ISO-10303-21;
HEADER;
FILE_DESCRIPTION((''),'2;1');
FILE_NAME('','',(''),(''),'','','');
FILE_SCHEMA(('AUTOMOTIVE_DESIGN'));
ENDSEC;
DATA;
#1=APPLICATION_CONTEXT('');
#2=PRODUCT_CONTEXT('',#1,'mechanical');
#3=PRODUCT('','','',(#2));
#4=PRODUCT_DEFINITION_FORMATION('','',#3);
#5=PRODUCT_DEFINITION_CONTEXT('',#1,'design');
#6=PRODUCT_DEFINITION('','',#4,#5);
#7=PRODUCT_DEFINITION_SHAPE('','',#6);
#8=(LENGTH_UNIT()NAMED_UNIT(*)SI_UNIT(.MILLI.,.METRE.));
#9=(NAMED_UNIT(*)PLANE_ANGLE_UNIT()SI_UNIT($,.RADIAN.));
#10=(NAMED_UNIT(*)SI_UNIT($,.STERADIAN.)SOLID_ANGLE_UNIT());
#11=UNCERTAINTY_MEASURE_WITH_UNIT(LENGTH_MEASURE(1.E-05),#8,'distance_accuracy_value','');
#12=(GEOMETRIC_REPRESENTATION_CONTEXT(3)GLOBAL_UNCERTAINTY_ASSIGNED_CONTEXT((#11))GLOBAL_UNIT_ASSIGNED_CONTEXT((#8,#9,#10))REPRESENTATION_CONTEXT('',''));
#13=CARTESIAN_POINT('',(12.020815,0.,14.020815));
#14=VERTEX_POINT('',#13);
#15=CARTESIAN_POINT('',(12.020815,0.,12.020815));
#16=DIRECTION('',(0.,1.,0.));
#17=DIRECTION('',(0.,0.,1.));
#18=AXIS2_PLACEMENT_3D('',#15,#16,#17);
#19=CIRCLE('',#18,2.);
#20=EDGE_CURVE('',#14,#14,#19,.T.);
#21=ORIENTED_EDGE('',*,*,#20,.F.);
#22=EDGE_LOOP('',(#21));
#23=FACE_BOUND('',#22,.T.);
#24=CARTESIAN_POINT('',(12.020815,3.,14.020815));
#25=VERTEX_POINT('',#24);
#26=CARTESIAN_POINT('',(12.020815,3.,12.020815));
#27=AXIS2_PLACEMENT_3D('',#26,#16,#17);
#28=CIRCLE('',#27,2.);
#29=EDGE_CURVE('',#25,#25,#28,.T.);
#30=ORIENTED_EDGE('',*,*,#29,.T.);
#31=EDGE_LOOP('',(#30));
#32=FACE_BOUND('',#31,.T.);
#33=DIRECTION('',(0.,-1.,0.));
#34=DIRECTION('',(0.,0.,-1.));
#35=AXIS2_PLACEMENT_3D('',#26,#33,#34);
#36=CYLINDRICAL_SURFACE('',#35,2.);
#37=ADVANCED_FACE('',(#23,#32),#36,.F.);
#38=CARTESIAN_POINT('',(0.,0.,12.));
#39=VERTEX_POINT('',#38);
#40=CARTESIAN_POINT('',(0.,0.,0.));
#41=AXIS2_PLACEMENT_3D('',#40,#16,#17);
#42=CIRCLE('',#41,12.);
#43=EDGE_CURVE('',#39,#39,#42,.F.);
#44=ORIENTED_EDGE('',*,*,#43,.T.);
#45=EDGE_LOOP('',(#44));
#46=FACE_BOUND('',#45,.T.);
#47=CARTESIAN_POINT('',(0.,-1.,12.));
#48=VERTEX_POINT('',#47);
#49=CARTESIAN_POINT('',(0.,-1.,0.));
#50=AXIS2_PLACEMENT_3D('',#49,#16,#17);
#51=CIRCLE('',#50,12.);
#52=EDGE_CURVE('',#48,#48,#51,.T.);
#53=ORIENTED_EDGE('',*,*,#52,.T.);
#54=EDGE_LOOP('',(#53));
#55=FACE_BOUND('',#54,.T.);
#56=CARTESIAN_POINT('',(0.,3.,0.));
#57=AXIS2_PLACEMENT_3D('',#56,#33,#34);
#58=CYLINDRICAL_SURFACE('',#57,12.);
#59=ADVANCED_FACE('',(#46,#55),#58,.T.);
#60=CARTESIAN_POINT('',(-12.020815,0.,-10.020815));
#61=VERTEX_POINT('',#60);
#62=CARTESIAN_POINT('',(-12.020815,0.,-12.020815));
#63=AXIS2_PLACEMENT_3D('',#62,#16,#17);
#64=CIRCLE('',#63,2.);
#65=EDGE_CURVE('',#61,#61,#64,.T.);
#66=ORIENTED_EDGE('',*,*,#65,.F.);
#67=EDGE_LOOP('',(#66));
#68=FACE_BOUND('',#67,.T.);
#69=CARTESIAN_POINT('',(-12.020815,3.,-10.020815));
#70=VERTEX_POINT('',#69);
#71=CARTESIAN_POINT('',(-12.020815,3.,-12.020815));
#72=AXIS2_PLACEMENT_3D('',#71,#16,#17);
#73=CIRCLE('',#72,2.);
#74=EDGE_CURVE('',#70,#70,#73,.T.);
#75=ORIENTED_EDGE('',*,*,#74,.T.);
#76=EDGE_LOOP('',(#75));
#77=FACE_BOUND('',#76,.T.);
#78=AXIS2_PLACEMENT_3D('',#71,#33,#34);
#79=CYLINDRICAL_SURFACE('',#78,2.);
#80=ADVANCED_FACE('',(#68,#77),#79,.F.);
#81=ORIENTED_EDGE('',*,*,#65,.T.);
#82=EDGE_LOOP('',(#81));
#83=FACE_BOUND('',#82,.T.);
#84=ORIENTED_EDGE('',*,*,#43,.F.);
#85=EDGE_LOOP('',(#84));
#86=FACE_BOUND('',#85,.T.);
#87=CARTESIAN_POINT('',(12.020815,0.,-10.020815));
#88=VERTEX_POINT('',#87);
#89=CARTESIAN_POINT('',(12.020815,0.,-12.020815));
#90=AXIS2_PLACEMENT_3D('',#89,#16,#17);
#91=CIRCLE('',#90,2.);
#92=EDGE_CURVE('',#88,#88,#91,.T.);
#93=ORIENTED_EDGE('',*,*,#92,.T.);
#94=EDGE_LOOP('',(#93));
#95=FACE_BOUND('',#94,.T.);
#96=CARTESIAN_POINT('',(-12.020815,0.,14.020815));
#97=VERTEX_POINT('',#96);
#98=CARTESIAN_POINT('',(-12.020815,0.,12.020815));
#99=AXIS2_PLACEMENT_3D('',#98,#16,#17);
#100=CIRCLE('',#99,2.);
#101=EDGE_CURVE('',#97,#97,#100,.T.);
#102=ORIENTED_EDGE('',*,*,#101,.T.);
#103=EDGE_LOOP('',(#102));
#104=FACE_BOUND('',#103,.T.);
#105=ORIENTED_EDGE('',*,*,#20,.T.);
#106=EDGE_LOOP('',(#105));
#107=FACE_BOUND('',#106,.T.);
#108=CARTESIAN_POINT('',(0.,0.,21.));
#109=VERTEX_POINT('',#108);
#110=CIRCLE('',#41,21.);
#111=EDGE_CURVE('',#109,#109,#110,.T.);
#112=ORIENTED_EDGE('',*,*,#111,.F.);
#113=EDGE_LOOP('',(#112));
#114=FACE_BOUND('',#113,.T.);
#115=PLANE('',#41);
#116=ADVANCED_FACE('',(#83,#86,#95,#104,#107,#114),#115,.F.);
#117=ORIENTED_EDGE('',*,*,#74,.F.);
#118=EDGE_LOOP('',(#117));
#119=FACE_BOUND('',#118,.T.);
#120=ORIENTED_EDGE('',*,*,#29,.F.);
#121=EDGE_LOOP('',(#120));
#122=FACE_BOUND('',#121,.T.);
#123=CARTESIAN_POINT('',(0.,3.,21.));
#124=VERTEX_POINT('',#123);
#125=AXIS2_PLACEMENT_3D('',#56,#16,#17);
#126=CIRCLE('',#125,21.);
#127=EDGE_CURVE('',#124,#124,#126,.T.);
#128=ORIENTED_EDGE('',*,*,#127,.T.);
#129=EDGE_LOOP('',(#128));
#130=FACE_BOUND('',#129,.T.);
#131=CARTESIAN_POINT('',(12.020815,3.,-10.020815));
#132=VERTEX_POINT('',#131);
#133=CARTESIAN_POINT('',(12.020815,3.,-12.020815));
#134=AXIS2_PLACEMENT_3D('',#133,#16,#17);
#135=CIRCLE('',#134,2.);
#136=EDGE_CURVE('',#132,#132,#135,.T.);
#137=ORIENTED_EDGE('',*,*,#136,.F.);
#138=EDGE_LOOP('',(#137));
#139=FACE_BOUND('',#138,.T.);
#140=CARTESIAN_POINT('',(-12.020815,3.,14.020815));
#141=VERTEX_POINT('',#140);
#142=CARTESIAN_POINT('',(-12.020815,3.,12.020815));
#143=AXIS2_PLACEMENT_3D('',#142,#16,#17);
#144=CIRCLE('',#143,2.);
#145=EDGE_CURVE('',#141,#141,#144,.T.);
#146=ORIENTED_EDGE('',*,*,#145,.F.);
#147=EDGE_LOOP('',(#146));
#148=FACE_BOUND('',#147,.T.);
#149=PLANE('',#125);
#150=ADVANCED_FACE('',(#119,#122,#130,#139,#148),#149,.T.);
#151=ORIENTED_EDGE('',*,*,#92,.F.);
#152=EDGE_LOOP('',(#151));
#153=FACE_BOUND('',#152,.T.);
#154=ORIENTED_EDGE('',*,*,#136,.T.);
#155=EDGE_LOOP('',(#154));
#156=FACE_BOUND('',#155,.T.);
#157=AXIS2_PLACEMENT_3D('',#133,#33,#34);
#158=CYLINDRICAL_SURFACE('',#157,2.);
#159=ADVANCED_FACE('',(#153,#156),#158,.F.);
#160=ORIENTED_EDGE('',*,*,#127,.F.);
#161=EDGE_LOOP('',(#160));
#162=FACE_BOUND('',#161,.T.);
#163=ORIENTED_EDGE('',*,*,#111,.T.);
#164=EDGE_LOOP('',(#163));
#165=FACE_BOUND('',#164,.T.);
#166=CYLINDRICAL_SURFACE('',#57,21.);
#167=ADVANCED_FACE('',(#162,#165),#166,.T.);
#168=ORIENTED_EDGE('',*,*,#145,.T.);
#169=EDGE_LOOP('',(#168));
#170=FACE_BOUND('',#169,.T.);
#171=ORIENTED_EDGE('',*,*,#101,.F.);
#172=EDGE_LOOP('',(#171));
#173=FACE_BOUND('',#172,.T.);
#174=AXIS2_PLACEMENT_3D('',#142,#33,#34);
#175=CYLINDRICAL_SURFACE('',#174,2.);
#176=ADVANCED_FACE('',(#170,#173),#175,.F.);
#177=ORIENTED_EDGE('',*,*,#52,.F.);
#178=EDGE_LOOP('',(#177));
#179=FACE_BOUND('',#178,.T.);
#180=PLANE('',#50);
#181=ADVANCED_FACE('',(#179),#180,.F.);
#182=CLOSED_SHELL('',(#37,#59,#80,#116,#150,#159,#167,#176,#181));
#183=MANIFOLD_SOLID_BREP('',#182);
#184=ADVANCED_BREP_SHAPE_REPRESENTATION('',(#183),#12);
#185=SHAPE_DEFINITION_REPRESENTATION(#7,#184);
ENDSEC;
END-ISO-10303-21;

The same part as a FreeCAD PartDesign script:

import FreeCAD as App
import Part
import Sketcher
from FreeCAD import Vector

doc = App.newDocument("Part")
params = doc.addObject("Spreadsheet::Sheet", "Params")
for row, (alias, value) in enumerate([
    ("sketch1_diameter", "42 mm"),
    ("sketch1_diameter2", "4 mm"),
    ("sketch1_diameter3", "24 mm"),
    ("pad1_length", "3 mm"),
    ("sketch2_diameter", "24 mm"),
    ("pad2_length", "3 mm"),
    ("pad2_length2", "1 mm"),
], start=1):
    params.set(f"A{row}", alias)
    params.set(f"B{row}", "=" + value)
    params.setAlias(f"B{row}", alias)

body = doc.addObject("PartDesign::Body", "Body")

# Sketch on XZ plane
sketch1 = body.newObject("Sketcher::SketchObject", "Sketch")
sketch1.AttachmentSupport = (doc.getObject("XZ_Plane"), [""])
sketch1.MapMode = "FlatFace"
sketch1.addGeometry(Part.Circle(Vector(0, 0, 0), Vector(0, 0, 1), 21), False)
sketch1.addGeometry(Part.Circle(Vector(-12, 12, 0), Vector(0, 0, 1), 2), False)
sketch1.addGeometry(Part.Circle(Vector(12, 12, 0), Vector(0, 0, 1), 2), False)
sketch1.addGeometry(Part.Circle(Vector(-12, -12, 0), Vector(0, 0, 1), 2), False)
sketch1.addGeometry(Part.Circle(Vector(0, 0, 0), Vector(0, 0, 1), 12), False)
sketch1.addGeometry(Part.Circle(Vector(12, -12, 0), Vector(0, 0, 1), 2), False)
sketch1.addConstraint(Sketcher.Constraint("Coincident", 0, 3, -1, 1))
sketch1.addConstraint(Sketcher.Constraint("Coincident", 4, 3, -1, 1))
sketch1.addConstraint(Sketcher.Constraint("Equal", 1, 2))
sketch1.addConstraint(Sketcher.Constraint("Equal", 2, 3))
sketch1.addConstraint(Sketcher.Constraint("Equal", 3, 5))
sketch1.addConstraint(Sketcher.Constraint("Symmetric", 2, 3, 3, 3, -1, 1))
sketch1.addConstraint(Sketcher.Constraint("Symmetric", 1, 3, 5, 3, -1, 1))
sketch1.addConstraint(Sketcher.Constraint("Symmetric", 1, 3, 2, 3, -2))
sketch1.addConstraint(Sketcher.Constraint("Diameter", 0, 42.0))
sketch1.addConstraint(Sketcher.Constraint("Diameter", 1, 4.0))
sketch1.addConstraint(Sketcher.Constraint("Diameter", 4, 24.0))
sketch1.addConstraint(Sketcher.Constraint("DistanceX", 1, 3, 2, 3, 24.041631))
sketch1.addConstraint(Sketcher.Constraint("DistanceY", 3, 3, 1, 3, 24.041631))
sketch1.setExpression("Constraints[8]", "Params.sketch1_diameter")
sketch1.setExpression("Constraints[9]", "Params.sketch1_diameter2")
sketch1.setExpression("Constraints[10]", "Params.sketch1_diameter3")
pad1 = body.newObject("PartDesign::Pad", "Pad")
pad1.Profile = sketch1
pad1.setExpression("Length", "Params.pad1_length")
pad1.Reversed = True

# Sketch on XZ plane
sketch2 = body.newObject("Sketcher::SketchObject", "Sketch001")
sketch2.AttachmentSupport = (doc.getObject("XZ_Plane"), [""])
sketch2.MapMode = "FlatFace"
sketch2.addGeometry(Part.Circle(Vector(0, 0, 0), Vector(0, 0, 1), 12), False)
sketch2.addConstraint(Sketcher.Constraint("Coincident", 0, 3, -1, 1))
sketch2.addConstraint(Sketcher.Constraint("Diameter", 0, 24.0))
sketch2.setExpression("Constraints[1]", "Params.sketch2_diameter")
pad2 = body.newObject("PartDesign::Pad", "Pad001")
pad2.Profile = sketch2
pad2.Type = "TwoLengths"
pad2.setExpression("Length", "Params.pad2_length")
pad2.setExpression("Length2", "Params.pad2_length2")
pad2.Reversed = True

doc.recompute()
